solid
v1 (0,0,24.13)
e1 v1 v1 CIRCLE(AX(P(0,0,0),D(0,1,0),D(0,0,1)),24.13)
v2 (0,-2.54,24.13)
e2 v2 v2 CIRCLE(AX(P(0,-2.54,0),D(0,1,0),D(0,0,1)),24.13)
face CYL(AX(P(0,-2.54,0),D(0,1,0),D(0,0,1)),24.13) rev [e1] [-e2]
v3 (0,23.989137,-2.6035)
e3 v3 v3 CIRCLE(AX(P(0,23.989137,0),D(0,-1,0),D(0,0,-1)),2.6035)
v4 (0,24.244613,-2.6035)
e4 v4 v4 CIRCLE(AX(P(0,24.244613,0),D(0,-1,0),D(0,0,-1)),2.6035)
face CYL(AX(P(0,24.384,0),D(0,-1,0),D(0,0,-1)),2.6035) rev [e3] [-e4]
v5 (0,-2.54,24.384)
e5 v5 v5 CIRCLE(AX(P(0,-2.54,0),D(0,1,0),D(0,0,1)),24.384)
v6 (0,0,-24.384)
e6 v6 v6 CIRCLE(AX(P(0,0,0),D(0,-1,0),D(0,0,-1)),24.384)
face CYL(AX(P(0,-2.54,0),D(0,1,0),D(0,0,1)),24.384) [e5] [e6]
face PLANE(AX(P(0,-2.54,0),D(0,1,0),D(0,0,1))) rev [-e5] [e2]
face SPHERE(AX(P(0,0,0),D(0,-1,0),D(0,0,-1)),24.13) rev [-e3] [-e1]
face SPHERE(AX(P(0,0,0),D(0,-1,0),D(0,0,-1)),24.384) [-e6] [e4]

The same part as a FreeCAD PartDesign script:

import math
import FreeCAD as App
import Part
import Sketcher
Q = App.Units.Quantity

doc = App.newDocument("Part")
body = doc.addObject("PartDesign::Body", "Body")

# Sketch on YZ plane
sketch1 = body.newObject("Sketcher::SketchObject", "Sketch")
sketch1.AttachmentSupport = (doc.getObject("YZ_Plane"), [""])
sketch1.MapMode = "FlatFace"
sketch1.addGeometry(Part.LineSegment(App.Vector(0, -24.13, 0), App.Vector(0, -24.384, 0)), False)
sketch1.addGeometry(Part.ArcOfCircle(Part.Circle(App.Vector(0, 0, 0), App.Vector(0, 0, 1), 24.384), math.radians(-90), math.radians(0)), False)
sketch1.addGeometry(Part.LineSegment(App.Vector(24.384, 0, 0), App.Vector(24.13, 0, 0)), False)
sketch1.addGeometry(Part.ArcOfCircle(Part.Circle(App.Vector(0, 0, 0), App.Vector(0, 0, 1), 24.13), math.radians(-90), math.radians(0)), False)
sketch1.addConstraint(Sketcher.Constraint("Coincident", 0, 2, 1, 1))
sketch1.addConstraint(Sketcher.Constraint("Coincident", 1, 2, 2, 1))
sketch1.addConstraint(Sketcher.Constraint("Coincident", 2, 2, 3, 2))
sketch1.addConstraint(Sketcher.Constraint("Coincident", 3, 1, 0, 1))
sketch1.addConstraint(Sketcher.Constraint("Vertical", 0))
sketch1.addConstraint(Sketcher.Constraint("Horizontal", 2))
sketch1.addConstraint(Sketcher.Constraint("Coincident", 1, 3, -1, 1))
sketch1.addConstraint(Sketcher.Constraint("Coincident", 3, 3, -1, 1))
sketch1.addConstraint(Sketcher.Constraint("PointOnObject", 0, 2, -2))
sketch1.addConstraint(Sketcher.Constraint("PointOnObject", 1, 2, -1))
sketch1.addConstraint(Sketcher.Constraint("Radius", 1, Q("0.96 in")))
sketch1.addConstraint(Sketcher.Constraint("Radius", 3, Q("0.95 in")))
revolution = body.newObject("PartDesign::Revolution", "Revolution")
revolution.Profile = sketch1
revolution.ReferenceAxis = (sketch1, ["H_Axis"])
revolution.Angle = 360

# Sketch on XZ plane
sketch2 = body.newObject("Sketcher::SketchObject", "Sketch001")
sketch2.AttachmentSupport = (doc.getObject("XZ_Plane"), [""])
sketch2.MapMode = "FlatFace"
sketch2.addGeometry(Part.Circle(App.Vector(0, 0, 0), App.Vector(0, 0, 1), 2.6035), False)
sketch2.addConstraint(Sketcher.Constraint("Coincident", 0, 3, -1, 1))
sketch2.addConstraint(Sketcher.Constraint("Diameter", 0, Q("0.205 in")))
pocket1 = body.newObject("PartDesign::Pocket", "Pocket")
pocket1.Profile = sketch2
pocket1.Type = "ThroughAll"

# Sketch on XZ plane
sketch3 = body.newObject("Sketcher::SketchObject", "Sketch002")
sketch3.AttachmentSupport = (doc.getObject("XZ_Plane"), [""])
sketch3.MapMode = "FlatFace"
sketch3.addGeometry(Part.Circle(App.Vector(0, 0, 0), App.Vector(0, 0, 1), 24.384), False)
sketch3.addGeometry(Part.Circle(App.Vector(0, 0, 0), App.Vector(0, 0, 1), 24.13), False)
sketch3.addConstraint(Sketcher.Constraint("Coincident", 0, 3, -1, 1))
sketch3.addConstraint(Sketcher.Constraint("Coincident", 1, 3, -1, 1))
sketch3.addConstraint(Sketcher.Constraint("Diameter", 1, Q("1.9 in")))
sketch3.addConstraint(Sketcher.Constraint("Diameter", 0, Q("1.92 in")))
pad1 = body.newObject("PartDesign::Pad", "Pad")
pad1.Profile = sketch3
pad1.Length = Q("0.1 in")

doc.recompute()
